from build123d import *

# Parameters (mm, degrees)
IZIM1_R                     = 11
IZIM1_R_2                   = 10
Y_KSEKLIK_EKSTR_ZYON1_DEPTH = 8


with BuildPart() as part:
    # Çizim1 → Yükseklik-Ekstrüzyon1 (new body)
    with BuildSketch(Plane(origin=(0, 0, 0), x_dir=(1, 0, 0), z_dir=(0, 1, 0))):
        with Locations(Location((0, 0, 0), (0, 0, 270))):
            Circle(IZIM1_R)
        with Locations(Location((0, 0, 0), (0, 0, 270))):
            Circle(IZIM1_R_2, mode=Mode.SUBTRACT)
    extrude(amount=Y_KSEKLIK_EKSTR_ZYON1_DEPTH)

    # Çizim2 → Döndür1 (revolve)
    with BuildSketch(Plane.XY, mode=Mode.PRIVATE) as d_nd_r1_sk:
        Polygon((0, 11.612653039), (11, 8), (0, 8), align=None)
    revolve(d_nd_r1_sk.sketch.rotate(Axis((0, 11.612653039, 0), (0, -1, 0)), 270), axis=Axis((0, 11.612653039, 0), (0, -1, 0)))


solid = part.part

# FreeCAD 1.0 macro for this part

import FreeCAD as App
import Part
import Sketcher

V = App.Vector


def add_polygon(sketch, points):
    """Adds a closed chain of lines whose ends are joined by coincident constraints."""
    first, n = sketch.GeometryCount, len(points)
    for a, b in zip(points, points[1:] + points[:1]):
        sketch.addGeometry(Part.LineSegment(App.Vector(*a, 0), App.Vector(*b, 0)), False)
    for i in range(n):
        sketch.addConstraint(Sketcher.Constraint("Coincident", first + i, 2, first + (i + 1) % n, 1))

doc = App.newDocument("Part")
body = doc.addObject("PartDesign::Body", "Body")

sketch1 = body.newObject("Sketcher::SketchObject", "Sketch")
sketch1.AttachmentSupport = (doc.getObject("XZ_Plane"), [""])
sketch1.MapMode = "FlatFace"
sketch1.addGeometry([
    Part.Circle(V(0, 0, 0), V(0, 0, 1), 11),
    Part.Circle(V(0, 0, 0), V(0, 0, 1), 10),
], False)
sketch1.addConstraint([
    Sketcher.Constraint("Coincident", 0, 3, -1, 1),
    Sketcher.Constraint("Coincident", 1, 3, -1, 1),
    Sketcher.Constraint("Diameter", 0, 22.0),
    Sketcher.Constraint("Diameter", 1, 20.0),
])
pad1 = body.newObject("PartDesign::Pad", "Pad")
pad1.Profile = sketch1
pad1.Length = 8
pad1.Reversed = True

sketch2 = body.newObject("Sketcher::SketchObject", "Sketch001")
sketch2.AttachmentSupport = (doc.getObject("XY_Plane"), [""])
sketch2.MapMode = "FlatFace"
add_polygon(sketch2, [(11, 8), (0, 11.6), (0, 8)])
sketch2.addConstraint([
    Sketcher.Constraint("Vertical", 1),
    Sketcher.Constraint("Horizontal", 2),
    Sketcher.Constraint("PointOnObject", 0, 2, -2),
    Sketcher.Constraint("DistanceX", 2, 1, 2, 2, 11.0),
    Sketcher.Constraint("DistanceY", -1, 1, 1, 2, 8.0),
    Sketcher.Constraint("Distance", 0, 11.578051),
])
revolution = body.newObject("PartDesign::Revolution", "Revolution")
revolution.Profile = sketch2
revolution.ReferenceAxis = (sketch2, ["V_Axis"])
revolution.Angle = 360

doc.recompute()
